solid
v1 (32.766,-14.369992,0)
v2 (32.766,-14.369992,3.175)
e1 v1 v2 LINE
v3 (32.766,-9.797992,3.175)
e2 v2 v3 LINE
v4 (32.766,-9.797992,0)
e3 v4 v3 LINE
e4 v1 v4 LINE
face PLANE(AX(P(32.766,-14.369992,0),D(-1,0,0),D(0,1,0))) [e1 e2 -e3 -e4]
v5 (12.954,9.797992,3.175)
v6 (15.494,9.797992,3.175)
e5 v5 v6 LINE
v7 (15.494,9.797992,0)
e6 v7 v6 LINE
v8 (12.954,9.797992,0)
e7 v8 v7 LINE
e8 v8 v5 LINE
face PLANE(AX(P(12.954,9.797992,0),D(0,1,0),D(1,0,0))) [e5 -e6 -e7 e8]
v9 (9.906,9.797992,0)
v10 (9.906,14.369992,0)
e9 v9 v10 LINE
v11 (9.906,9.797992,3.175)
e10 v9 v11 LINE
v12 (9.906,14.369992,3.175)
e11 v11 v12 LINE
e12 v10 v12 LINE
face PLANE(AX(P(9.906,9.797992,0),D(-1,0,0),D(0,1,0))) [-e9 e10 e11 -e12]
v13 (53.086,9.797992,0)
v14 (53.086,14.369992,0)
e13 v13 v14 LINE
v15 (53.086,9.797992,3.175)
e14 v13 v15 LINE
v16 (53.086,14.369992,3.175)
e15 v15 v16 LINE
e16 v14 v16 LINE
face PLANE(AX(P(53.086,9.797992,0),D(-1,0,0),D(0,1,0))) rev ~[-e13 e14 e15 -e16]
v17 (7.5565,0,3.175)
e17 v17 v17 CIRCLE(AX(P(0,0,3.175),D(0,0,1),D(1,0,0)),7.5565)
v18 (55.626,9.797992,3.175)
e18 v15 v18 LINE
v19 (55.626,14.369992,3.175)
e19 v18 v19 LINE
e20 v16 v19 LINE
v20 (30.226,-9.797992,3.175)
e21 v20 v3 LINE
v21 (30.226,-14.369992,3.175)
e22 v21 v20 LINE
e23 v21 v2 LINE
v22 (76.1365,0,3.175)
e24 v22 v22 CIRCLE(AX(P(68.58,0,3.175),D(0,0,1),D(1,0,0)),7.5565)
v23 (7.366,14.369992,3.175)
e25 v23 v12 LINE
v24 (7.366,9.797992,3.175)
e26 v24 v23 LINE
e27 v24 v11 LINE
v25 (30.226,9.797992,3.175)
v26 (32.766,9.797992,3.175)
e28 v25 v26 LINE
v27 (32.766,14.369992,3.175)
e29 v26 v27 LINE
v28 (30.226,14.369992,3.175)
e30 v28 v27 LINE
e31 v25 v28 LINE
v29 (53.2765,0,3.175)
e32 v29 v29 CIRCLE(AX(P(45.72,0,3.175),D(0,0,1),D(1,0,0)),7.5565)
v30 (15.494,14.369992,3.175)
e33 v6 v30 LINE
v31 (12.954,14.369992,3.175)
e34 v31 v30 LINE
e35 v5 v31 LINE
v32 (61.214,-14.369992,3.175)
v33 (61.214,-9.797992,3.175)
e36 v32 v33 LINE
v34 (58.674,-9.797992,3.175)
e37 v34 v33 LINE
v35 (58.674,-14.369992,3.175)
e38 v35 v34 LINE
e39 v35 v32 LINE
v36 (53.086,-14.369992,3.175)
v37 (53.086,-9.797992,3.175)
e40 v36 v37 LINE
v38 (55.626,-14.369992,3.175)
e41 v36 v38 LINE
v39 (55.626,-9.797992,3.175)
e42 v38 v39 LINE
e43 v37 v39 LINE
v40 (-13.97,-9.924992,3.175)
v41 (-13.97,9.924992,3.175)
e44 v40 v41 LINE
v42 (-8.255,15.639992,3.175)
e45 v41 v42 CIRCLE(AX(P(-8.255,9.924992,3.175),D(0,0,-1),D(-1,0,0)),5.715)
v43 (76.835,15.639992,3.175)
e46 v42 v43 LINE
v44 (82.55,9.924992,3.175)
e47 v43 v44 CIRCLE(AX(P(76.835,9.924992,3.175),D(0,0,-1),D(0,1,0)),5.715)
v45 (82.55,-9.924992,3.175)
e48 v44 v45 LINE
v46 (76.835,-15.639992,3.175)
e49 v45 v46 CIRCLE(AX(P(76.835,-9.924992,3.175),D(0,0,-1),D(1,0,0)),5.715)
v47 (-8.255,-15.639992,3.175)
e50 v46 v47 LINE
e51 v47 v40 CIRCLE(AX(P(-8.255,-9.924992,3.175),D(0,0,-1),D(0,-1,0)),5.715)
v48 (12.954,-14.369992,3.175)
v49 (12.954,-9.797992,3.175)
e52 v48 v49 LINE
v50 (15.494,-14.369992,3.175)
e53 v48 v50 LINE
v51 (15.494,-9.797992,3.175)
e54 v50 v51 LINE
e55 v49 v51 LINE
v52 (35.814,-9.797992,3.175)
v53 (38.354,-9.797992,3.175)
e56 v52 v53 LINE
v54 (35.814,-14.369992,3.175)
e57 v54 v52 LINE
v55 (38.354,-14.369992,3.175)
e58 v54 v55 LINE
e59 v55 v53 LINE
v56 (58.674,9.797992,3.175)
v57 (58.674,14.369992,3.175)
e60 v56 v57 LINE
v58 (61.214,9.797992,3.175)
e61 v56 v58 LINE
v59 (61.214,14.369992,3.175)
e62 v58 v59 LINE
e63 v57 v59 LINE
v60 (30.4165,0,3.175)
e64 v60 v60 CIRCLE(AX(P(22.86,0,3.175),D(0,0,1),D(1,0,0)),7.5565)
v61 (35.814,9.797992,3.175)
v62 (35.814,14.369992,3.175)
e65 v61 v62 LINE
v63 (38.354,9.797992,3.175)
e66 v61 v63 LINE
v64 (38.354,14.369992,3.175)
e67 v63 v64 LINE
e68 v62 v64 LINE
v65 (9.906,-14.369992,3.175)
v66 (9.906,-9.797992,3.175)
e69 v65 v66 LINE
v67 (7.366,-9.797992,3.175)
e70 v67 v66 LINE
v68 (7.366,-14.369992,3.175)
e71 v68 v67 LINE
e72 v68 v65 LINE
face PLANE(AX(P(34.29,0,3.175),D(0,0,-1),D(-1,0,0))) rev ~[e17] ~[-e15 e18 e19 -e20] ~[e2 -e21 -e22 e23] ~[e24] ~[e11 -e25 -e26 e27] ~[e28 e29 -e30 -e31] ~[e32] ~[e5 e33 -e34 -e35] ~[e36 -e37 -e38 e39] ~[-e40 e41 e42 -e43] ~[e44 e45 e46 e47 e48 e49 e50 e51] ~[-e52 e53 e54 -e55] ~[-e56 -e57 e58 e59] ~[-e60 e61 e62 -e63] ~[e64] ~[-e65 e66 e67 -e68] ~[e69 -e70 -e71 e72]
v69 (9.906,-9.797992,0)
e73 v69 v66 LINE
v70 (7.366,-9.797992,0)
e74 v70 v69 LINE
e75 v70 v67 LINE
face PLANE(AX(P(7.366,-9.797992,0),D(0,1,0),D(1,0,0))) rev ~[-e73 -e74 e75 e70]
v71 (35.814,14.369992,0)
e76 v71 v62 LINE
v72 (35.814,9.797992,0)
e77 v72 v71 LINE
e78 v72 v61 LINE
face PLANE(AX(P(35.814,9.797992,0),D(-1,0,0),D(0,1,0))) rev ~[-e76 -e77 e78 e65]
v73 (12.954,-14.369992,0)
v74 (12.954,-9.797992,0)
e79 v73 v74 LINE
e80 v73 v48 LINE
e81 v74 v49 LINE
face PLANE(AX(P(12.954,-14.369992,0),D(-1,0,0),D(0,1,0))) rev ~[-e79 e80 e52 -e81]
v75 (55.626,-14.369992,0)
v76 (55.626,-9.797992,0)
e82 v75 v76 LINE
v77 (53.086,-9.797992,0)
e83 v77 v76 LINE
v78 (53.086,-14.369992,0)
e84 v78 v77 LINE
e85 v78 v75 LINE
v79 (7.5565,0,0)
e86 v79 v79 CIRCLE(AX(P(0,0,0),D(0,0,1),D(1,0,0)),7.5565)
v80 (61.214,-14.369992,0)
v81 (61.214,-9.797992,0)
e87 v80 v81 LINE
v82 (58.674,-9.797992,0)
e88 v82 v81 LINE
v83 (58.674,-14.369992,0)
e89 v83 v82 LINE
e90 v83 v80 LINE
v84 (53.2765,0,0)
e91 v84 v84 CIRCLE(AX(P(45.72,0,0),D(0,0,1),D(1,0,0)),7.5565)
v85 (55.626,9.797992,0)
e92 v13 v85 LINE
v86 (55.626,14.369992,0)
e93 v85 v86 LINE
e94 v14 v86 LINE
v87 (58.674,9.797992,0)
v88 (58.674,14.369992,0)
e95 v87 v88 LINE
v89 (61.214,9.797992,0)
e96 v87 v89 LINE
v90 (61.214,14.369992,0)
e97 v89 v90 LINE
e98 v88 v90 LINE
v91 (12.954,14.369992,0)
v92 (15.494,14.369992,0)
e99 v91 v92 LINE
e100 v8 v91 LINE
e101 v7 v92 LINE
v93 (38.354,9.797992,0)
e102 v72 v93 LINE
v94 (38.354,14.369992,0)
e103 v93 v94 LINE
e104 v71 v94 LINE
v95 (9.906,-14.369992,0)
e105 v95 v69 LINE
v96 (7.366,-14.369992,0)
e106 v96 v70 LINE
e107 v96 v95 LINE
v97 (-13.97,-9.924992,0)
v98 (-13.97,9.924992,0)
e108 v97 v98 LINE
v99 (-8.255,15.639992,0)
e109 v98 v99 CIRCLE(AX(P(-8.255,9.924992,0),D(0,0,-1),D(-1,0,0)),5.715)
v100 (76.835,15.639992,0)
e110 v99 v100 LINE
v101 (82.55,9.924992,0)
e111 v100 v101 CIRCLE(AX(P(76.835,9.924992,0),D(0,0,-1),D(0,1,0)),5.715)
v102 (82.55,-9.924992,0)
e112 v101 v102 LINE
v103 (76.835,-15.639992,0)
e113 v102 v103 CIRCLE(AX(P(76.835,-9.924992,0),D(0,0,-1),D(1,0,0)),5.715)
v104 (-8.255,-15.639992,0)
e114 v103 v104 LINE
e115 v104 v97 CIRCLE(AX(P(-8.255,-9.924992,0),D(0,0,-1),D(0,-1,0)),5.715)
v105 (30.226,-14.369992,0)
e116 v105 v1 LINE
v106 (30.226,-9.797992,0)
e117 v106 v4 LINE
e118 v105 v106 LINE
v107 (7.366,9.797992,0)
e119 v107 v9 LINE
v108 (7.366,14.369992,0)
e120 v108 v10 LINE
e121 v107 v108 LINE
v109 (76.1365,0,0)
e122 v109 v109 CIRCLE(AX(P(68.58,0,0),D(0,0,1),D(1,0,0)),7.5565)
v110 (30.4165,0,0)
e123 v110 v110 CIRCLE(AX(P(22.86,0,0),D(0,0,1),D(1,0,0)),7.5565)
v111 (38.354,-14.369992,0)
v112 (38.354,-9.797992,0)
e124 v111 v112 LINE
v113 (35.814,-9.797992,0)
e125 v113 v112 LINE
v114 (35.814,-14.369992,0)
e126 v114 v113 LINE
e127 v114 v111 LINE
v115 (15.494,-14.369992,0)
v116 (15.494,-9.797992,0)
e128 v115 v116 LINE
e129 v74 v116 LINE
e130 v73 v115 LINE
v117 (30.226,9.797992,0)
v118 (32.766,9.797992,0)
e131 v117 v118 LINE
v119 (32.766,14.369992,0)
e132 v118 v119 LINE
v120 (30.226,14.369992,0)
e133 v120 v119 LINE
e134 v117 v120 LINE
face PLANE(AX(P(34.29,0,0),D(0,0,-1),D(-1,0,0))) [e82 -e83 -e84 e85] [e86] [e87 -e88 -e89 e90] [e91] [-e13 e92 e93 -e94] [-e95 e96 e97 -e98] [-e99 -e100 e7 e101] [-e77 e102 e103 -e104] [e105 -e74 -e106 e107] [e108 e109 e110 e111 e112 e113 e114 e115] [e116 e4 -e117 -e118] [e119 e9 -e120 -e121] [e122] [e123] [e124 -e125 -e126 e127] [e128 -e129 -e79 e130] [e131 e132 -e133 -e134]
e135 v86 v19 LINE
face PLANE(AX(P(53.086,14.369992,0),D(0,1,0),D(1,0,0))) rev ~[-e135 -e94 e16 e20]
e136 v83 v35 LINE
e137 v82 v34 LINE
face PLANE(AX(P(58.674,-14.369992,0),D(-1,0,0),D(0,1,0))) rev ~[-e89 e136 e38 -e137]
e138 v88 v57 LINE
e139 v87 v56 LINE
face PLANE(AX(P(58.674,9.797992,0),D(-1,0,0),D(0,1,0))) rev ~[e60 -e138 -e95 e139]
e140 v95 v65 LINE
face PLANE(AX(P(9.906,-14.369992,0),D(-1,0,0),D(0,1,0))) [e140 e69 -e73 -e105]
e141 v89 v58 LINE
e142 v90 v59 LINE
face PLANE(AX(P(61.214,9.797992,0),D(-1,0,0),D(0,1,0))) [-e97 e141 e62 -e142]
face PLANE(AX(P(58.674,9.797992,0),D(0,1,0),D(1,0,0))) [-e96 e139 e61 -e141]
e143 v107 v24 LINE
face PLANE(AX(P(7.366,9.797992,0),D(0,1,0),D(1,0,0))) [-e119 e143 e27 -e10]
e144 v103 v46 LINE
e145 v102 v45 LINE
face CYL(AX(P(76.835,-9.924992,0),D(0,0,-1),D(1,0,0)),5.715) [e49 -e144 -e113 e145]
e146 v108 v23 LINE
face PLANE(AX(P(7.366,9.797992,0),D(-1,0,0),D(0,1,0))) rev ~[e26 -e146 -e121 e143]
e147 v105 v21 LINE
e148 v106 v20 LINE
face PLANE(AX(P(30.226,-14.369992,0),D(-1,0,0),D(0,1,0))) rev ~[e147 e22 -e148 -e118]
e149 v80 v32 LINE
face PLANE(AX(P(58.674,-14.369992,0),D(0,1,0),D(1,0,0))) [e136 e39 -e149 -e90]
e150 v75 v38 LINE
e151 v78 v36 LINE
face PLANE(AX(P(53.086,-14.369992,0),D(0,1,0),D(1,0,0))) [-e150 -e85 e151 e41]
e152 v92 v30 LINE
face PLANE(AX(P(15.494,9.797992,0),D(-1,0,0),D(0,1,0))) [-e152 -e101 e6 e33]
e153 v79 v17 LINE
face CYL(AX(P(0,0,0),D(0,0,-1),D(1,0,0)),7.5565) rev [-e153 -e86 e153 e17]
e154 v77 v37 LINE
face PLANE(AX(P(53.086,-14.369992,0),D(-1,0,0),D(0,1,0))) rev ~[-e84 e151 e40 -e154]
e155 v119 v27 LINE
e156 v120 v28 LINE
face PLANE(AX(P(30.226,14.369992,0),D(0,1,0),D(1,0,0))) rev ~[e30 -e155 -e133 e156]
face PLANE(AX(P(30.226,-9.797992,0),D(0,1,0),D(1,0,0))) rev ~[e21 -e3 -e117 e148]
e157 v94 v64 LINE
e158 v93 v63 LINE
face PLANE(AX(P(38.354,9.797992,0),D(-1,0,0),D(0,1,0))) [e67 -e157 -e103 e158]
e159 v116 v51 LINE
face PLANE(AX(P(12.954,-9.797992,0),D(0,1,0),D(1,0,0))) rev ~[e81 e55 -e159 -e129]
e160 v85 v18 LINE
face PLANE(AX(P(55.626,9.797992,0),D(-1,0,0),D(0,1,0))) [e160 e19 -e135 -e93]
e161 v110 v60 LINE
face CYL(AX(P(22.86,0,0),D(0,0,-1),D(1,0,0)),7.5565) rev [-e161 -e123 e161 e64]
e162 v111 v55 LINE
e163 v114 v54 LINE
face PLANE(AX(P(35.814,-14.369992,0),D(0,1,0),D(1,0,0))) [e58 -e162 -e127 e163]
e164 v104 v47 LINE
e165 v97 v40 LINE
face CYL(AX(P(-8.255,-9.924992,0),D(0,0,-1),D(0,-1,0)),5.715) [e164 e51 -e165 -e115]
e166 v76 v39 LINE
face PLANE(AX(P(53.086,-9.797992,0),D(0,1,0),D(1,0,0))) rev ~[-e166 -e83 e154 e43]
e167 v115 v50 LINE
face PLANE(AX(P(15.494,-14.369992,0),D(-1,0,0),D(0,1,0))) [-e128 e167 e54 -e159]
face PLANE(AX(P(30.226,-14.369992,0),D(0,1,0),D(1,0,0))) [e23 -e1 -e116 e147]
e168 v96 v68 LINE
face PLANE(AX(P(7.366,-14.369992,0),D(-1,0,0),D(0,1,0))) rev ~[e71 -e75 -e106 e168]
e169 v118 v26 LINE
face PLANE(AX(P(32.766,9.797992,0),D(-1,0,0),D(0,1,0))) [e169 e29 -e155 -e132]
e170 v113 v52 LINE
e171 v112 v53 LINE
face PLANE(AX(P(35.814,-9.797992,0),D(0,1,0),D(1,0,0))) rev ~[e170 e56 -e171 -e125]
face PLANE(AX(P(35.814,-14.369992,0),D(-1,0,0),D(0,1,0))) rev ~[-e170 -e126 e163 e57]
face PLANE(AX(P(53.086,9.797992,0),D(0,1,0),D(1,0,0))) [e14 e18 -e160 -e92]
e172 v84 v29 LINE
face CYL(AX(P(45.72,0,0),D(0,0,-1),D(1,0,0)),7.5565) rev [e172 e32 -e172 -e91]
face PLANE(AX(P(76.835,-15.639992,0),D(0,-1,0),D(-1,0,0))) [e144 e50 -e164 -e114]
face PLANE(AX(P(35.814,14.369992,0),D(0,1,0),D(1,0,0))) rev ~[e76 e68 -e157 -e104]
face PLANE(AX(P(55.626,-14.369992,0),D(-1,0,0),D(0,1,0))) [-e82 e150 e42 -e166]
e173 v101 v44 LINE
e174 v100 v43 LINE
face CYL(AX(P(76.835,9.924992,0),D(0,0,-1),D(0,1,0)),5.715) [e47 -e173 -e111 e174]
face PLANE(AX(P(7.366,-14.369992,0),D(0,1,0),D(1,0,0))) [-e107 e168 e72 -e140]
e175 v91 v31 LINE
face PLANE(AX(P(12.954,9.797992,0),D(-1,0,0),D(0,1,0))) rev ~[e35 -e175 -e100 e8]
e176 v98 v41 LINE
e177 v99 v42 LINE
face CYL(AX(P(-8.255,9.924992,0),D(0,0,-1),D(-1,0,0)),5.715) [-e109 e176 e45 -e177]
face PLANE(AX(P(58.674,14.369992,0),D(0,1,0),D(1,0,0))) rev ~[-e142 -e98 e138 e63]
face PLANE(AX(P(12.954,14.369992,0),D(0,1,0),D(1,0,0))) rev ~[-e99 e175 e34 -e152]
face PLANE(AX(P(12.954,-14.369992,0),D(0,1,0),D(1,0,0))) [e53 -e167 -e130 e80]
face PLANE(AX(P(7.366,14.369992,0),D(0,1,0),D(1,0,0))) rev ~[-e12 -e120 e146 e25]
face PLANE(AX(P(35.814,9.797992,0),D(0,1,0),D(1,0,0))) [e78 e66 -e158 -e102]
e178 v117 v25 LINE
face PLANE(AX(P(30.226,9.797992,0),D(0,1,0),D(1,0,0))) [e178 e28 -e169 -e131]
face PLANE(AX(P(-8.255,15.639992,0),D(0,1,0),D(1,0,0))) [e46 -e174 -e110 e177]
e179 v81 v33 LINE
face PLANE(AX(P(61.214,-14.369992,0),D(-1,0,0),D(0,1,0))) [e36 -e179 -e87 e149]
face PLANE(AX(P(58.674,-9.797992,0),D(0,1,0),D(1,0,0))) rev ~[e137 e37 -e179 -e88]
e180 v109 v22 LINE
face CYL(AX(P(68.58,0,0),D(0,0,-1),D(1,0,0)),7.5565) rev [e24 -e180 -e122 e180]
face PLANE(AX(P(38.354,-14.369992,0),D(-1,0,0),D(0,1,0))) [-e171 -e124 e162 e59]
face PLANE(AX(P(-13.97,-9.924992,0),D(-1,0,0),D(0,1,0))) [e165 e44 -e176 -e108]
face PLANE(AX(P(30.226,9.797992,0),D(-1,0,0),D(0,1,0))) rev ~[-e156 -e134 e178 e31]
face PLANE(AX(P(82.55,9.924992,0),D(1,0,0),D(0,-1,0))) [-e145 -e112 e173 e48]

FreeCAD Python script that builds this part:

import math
import FreeCAD as App
import Part
import Sketcher
from FreeCAD import Vector
Q = App.Units.Quantity


def add_polygon(sketch, points):
    """Adds a closed chain of lines whose ends are joined by coincident constraints."""
    first, n = sketch.GeometryCount, len(points)
    for a, b in zip(points, points[1:] + points[:1]):
        sketch.addGeometry(Part.LineSegment(App.Vector(*a, 0), App.Vector(*b, 0)), False)
    for i in range(n):
        sketch.addConstraint(Sketcher.Constraint("Coincident", first + i, 2, first + (i + 1) % n, 1))

doc = App.newDocument("Part")
body = doc.addObject("PartDesign::Body", "Body")

# Sketch on XY plane
sketch1 = body.newObject("Sketcher::SketchObject", "Sketch")
sketch1.AttachmentSupport = (doc.getObject("XY_Plane"), [""])
sketch1.MapMode = "FlatFace"
sketch1.addGeometry(Part.LineSegment(Vector(76.8, 15.6, 0), Vector(-8.3, 15.6, 0)), False)  # 0
sketch1.addGeometry(Part.ArcOfCircle(Part.Circle(Vector(-8.3, 9.9, 0), Vector(0, 0, 1), 5.7), math.radians(90), math.radians(180)), False)  # 1
sketch1.addGeometry(Part.LineSegment(Vector(-14, 9.9, 0), Vector(-14, -9.9, 0)), False)  # 2
sketch1.addGeometry(Part.ArcOfCircle(Part.Circle(Vector(-8.3, -9.9, 0), Vector(0, 0, 1), 5.7), math.radians(-180), math.radians(-90)), False)  # 3
sketch1.addGeometry(Part.LineSegment(Vector(-8.3, -15.6, 0), Vector(76.8, -15.6, 0)), False)  # 4
sketch1.addGeometry(Part.ArcOfCircle(Part.Circle(Vector(76.8, -9.9, 0), Vector(0, 0, 1), 5.7), math.radians(-90), math.radians(0)), False)  # 5
sketch1.addGeometry(Part.LineSegment(Vector(82.5, -9.9, 0), Vector(82.5, 9.9, 0)), False)  # 6
sketch1.addGeometry(Part.ArcOfCircle(Part.Circle(Vector(76.8, 9.9, 0), Vector(0, 0, 1), 5.7), math.radians(0), math.radians(90)), False)  # 7
add_polygon(sketch1, [(58.7, -14.4), (58.7, -9.8), (61.2, -9.8), (61.2, -14.4)])  # lines 8-11
add_polygon(sketch1, [(53.1, -14.4), (53.1, -9.8), (55.6, -9.8), (55.6, -14.4)])  # lines 12-15
add_polygon(sketch1, [(35.8, -14.4), (35.8, -9.8), (38.4, -9.8), (38.4, -14.4)])  # lines 16-19
add_polygon(sketch1, [(30.2, -14.4), (30.2, -9.8), (32.8, -9.8), (32.8, -14.4)])  # lines 20-23
add_polygon(sketch1, [(13, -14.4), (13, -9.8), (15.5, -9.8), (15.5, -14.4)])  # lines 24-27
add_polygon(sketch1, [(7.4, -14.4), (7.4, -9.8), (9.9, -9.8), (9.9, -14.4)])  # lines 28-31
sketch1.addGeometry(Part.Circle(Vector(68.6, 0, 0), Vector(0, 0, 1), 7.6), False)  # 32
sketch1.addGeometry(Part.Circle(Vector(45.7, 0, 0), Vector(0, 0, 1), 7.6), False)  # 33
add_polygon(sketch1, [(58.7, 9.8), (58.7, 14.4), (61.2, 14.4), (61.2, 9.8)])  # lines 34-37
add_polygon(sketch1, [(53.1, 9.8), (53.1, 14.4), (55.6, 14.4), (55.6, 9.8)])  # lines 38-41
add_polygon(sketch1, [(35.8, 9.8), (35.8, 14.4), (38.4, 14.4), (38.4, 9.8)])  # lines 42-45
sketch1.addGeometry(Part.Circle(Vector(22.9, 0, 0), Vector(0, 0, 1), 7.6), False)  # 46
sketch1.addGeometry(Part.Circle(Vector(0, 0, 0), Vector(0, 0, 1), 7.6), False)  # 47
add_polygon(sketch1, [(30.2, 9.8), (30.2, 14.4), (32.8, 14.4), (32.8, 9.8)])  # lines 48-51
add_polygon(sketch1, [(13, 9.8), (13, 14.4), (15.5, 14.4), (15.5, 9.8)])  # lines 52-55
add_polygon(sketch1, [(7.4, 9.8), (7.4, 14.4), (9.9, 14.4), (9.9, 9.8)])  # lines 56-59
sketch1.addConstraint([
    Sketcher.Constraint("Tangent", 0, 2, 1, 1),
    Sketcher.Constraint("Tangent", 1, 2, 2, 1),
    Sketcher.Constraint("Tangent", 2, 2, 3, 1),
    Sketcher.Constraint("Tangent", 3, 2, 4, 1),
    Sketcher.Constraint("Tangent", 4, 2, 5, 1),
    Sketcher.Constraint("Tangent", 5, 2, 6, 1),
    Sketcher.Constraint("Tangent", 6, 2, 7, 1),
    Sketcher.Constraint("Tangent", 7, 2, 0, 1),
    Sketcher.Constraint("Horizontal", 0),
    Sketcher.Constraint("Vertical", 2),
    Sketcher.Constraint("Horizontal", 4),
    Sketcher.Constraint("Vertical", 6),
    Sketcher.Constraint("Vertical", 8),
    Sketcher.Constraint("Horizontal", 9),
    Sketcher.Constraint("Vertical", 10),
    Sketcher.Constraint("Horizontal", 11),
    Sketcher.Constraint("Vertical", 12),
    Sketcher.Constraint("Horizontal", 13),
    Sketcher.Constraint("Vertical", 14),
    Sketcher.Constraint("Horizontal", 15),
    Sketcher.Constraint("Vertical", 16),
    Sketcher.Constraint("Horizontal", 17),
    Sketcher.Constraint("Vertical", 18),
    Sketcher.Constraint("Horizontal", 19),
    Sketcher.Constraint("Vertical", 20),
    Sketcher.Constraint("Horizontal", 21),
    Sketcher.Constraint("Vertical", 22),
    Sketcher.Constraint("Horizontal", 23),
    Sketcher.Constraint("Vertical", 24),
    Sketcher.Constraint("Horizontal", 25),
    Sketcher.Constraint("Vertical", 26),
    Sketcher.Constraint("Horizontal", 27),
    Sketcher.Constraint("Vertical", 28),
    Sketcher.Constraint("Horizontal", 29),
    Sketcher.Constraint("Vertical", 30),
    Sketcher.Constraint("Horizontal", 31),
    Sketcher.Constraint("Vertical", 34),
    Sketcher.Constraint("Horizontal", 35),
    Sketcher.Constraint("Vertical", 36),
    Sketcher.Constraint("Horizontal", 37),
    Sketcher.Constraint("Vertical", 38),
    Sketcher.Constraint("Horizontal", 39),
    Sketcher.Constraint("Vertical", 40),
    Sketcher.Constraint("Horizontal", 41),
    Sketcher.Constraint("Vertical", 42),
    Sketcher.Constraint("Horizontal", 43),
    Sketcher.Constraint("Vertical", 44),
    Sketcher.Constraint("Horizontal", 45),
    Sketcher.Constraint("Vertical", 48),
    Sketcher.Constraint("Horizontal", 49),
    Sketcher.Constraint("Vertical", 50),
    Sketcher.Constraint("Horizontal", 51),
    Sketcher.Constraint("Vertical", 52),
    Sketcher.Constraint("Horizontal", 53),
    Sketcher.Constraint("Vertical", 54),
    Sketcher.Constraint("Horizontal", 55),
    Sketcher.Constraint("Vertical", 56),
    Sketcher.Constraint("Horizontal", 57),
    Sketcher.Constraint("Vertical", 58),
    Sketcher.Constraint("Horizontal", 59),
    Sketcher.Constraint("Coincident", 47, 3, -1, 1),
    Sketcher.Constraint("Equal", 1, 3),
    Sketcher.Constraint("Equal", 3, 5),
    Sketcher.Constraint("Equal", 5, 7),
    Sketcher.Constraint("Equal", 32, 33),
    Sketcher.Constraint("Equal", 33, 46),
    Sketcher.Constraint("Equal", 46, 47),
    Sketcher.Constraint("Symmetric", 11, 2, 34, 2, -1),
    Sketcher.Constraint("Symmetric", 9, 2, 36, 2, -1),
    Sketcher.Constraint("Symmetric", 15, 2, 38, 2, -1),
    Sketcher.Constraint("Symmetric", 13, 2, 40, 2, -1),
    Sketcher.Constraint("Symmetric", 19, 2, 42, 2, -1),
    Sketcher.Constraint("Symmetric", 17, 2, 44, 2, -1),
    Sketcher.Constraint("Symmetric", 23, 2, 48, 2, -1),
    Sketcher.Constraint("Symmetric", 21, 2, 50, 2, -1),
    Sketcher.Constraint("Symmetric", 27, 2, 52, 2, -1),
    Sketcher.Constraint("Symmetric", 25, 2, 54, 2, -1),
    Sketcher.Constraint("Symmetric", 31, 2, 56, 2, -1),
    Sketcher.Constraint("Symmetric", 29, 2, 58, 2, -1),
    Sketcher.Constraint("PointOnObject", 32, 3, -1),
    Sketcher.Constraint("PointOnObject", 33, 3, -1),
    Sketcher.Constraint("PointOnObject", 46, 3, -1),
    Sketcher.Constraint("Horizontal", 9, 2, 12, 2),
    Sketcher.Constraint("Horizontal", 11, 2, 14, 2),
    Sketcher.Constraint("Horizontal", 13, 2, 16, 2),
    Sketcher.Constraint("Horizontal", 15, 2, 18, 2),
    Sketcher.Constraint("Horizontal", 17, 2, 20, 2),
    Sketcher.Constraint("Horizontal", 19, 2, 22, 2),
    Sketcher.Constraint("Horizontal", 21, 2, 24, 2),
    Sketcher.Constraint("Horizontal", 23, 2, 26, 2),
    Sketcher.Constraint("Horizontal", 25, 2, 28, 2),
    Sketcher.Constraint("Horizontal", 27, 2, 30, 2),
    Sketcher.Constraint("Equal", 11, 13),
    Sketcher.Constraint("Equal", 15, 17),
    Sketcher.Constraint("Equal", 19, 21),
    Sketcher.Constraint("Equal", 23, 25),
    Sketcher.Constraint("Equal", 27, 29),
    Sketcher.Constraint("Diameter", 32, Q("0.595 in")),
    Sketcher.Constraint("DistanceX", 9, 1, 9, 2, Q("0.1 in")),
    Sketcher.Constraint("Radius", 1, Q("0.225 in")),
    Sketcher.Constraint("DistanceX", 0, 2, 0, 1, Q("3.35 in")),
    Sketcher.Constraint("DistanceY", 8, 1, 8, 2, Q("0.18 in")),
    Sketcher.Constraint("DistanceX", -1, 1, 32, 3, Q("2.7 in")),
    Sketcher.Constraint("DistanceX", -1, 1, 33, 3, Q("1.8 in")),
    Sketcher.Constraint("DistanceX", -1, 1, 46, 3, Q("0.9 in")),
    Sketcher.Constraint("DistanceX", 1, 2, -1, 1, Q("0.55 in")),
    Sketcher.Constraint("DistanceX", -1, 1, 8, 2, Q("2.31 in")),
    Sketcher.Constraint("DistanceX", -1, 1, 12, 2, Q("2.09 in")),
    Sketcher.Constraint("DistanceX", -1, 1, 16, 2, Q("1.41 in")),
    Sketcher.Constraint("DistanceX", -1, 1, 20, 2, Q("1.19 in")),
    Sketcher.Constraint("DistanceX", -1, 1, 24, 2, Q("0.51 in")),
    Sketcher.Constraint("DistanceX", -1, 1, 28, 2, Q("0.29 in")),
    Sketcher.Constraint("DistanceY", 2, 2, 2, 1, Q("19.849985 mm")),
    Sketcher.Constraint("DistanceY", -1, 1, 1, 3, Q("9.924992 mm")),
    Sketcher.Constraint("DistanceY", 8, 2, -1, 1, Q("9.797992 mm")),
])
pad1 = body.newObject("PartDesign::Pad", "Pad")
pad1.Profile = sketch1
pad1.Length = Q("0.125 in")

doc.recompute()
